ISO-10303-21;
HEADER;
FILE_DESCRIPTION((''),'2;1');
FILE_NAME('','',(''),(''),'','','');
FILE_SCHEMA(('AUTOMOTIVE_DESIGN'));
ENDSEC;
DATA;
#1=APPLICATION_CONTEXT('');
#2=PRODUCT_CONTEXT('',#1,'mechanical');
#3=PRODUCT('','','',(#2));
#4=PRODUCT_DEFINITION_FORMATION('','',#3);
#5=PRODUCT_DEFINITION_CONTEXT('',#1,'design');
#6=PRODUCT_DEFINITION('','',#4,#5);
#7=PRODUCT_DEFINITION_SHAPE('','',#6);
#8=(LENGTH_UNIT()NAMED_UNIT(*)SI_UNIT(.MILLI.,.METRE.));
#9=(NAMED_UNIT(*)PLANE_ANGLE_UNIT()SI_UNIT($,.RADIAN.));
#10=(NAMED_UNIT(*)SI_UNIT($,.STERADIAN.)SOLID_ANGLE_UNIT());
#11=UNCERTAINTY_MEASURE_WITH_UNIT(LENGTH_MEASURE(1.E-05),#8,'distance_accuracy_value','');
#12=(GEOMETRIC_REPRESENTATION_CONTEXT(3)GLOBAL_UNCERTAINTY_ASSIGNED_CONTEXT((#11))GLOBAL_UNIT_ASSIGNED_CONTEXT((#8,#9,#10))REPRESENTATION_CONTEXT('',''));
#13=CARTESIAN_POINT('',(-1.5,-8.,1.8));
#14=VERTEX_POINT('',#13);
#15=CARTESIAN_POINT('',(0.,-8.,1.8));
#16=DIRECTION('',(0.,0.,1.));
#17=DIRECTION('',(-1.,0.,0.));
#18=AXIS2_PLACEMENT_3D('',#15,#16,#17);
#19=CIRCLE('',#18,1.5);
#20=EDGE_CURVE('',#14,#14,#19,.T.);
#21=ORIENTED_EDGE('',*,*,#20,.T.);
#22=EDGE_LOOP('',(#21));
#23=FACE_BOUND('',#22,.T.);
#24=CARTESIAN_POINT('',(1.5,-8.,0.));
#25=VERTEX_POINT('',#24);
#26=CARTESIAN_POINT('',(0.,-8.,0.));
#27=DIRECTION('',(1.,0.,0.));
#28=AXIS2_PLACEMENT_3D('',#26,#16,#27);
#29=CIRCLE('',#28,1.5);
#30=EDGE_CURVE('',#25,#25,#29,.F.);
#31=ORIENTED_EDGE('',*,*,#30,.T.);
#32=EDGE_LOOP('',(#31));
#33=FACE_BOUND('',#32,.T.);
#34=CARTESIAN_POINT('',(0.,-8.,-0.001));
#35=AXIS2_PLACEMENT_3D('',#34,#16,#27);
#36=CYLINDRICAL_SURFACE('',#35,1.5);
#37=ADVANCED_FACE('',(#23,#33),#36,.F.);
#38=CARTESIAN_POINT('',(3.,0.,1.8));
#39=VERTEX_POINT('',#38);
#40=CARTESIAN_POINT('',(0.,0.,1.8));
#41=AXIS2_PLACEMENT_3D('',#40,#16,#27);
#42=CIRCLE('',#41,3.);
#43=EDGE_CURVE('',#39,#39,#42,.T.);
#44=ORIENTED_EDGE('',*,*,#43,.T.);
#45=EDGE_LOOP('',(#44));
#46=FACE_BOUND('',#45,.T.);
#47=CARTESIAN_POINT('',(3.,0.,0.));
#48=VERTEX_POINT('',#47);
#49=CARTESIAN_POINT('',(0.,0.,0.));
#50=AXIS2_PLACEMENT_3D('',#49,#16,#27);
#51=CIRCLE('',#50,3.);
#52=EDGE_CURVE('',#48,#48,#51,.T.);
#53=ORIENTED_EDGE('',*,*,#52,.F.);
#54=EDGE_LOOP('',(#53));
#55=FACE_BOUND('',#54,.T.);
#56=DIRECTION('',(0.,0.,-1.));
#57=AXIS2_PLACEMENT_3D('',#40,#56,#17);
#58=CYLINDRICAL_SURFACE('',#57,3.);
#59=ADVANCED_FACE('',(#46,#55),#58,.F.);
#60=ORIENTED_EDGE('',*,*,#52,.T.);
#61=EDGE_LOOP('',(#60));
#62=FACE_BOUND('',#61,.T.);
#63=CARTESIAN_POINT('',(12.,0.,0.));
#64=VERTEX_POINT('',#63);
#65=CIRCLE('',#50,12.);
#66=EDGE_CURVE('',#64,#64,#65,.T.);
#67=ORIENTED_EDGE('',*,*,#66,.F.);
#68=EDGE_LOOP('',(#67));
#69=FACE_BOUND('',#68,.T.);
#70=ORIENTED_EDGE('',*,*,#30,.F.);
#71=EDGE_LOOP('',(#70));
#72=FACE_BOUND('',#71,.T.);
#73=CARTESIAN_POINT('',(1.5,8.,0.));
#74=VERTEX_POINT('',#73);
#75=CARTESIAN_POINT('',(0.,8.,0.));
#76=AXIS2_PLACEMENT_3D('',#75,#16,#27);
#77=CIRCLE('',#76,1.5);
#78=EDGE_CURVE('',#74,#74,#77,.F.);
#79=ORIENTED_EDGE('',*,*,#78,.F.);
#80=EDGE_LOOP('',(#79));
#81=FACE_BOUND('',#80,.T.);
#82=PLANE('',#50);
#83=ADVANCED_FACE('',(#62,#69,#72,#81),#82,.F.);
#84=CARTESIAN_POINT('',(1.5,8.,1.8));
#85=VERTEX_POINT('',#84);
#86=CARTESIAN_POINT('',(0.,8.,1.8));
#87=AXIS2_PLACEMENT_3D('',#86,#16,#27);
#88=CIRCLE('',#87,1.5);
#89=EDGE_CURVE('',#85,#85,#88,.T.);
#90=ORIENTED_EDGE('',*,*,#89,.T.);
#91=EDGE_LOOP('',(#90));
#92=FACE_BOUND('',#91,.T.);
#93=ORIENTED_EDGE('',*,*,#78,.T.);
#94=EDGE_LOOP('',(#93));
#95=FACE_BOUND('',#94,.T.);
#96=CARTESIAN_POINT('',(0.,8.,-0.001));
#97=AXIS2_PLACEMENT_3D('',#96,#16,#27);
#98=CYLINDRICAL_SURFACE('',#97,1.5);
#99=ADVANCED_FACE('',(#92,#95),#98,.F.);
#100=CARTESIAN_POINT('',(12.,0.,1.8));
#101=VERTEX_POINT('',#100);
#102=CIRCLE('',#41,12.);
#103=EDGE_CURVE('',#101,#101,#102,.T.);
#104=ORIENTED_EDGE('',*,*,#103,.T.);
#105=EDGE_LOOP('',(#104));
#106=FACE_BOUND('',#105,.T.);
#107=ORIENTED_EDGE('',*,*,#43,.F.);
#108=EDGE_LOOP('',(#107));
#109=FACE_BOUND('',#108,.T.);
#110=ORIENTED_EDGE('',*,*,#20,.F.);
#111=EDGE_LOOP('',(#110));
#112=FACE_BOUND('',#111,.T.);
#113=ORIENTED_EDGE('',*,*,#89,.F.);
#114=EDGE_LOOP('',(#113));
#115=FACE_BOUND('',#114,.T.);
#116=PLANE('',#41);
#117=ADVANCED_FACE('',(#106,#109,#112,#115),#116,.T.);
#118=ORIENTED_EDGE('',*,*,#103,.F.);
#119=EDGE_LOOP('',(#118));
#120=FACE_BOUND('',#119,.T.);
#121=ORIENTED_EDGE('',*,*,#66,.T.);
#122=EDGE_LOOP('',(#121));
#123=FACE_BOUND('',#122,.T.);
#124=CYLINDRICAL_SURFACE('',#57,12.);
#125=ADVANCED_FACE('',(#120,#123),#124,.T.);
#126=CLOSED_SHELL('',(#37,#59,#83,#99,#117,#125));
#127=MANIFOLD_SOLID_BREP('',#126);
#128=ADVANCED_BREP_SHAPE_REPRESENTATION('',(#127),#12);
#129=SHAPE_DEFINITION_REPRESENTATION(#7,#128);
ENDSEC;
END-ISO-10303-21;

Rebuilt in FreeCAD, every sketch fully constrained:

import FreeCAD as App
import Part
import Sketcher

doc = App.newDocument("Part")
body = doc.addObject("PartDesign::Body", "Body")

sketch1 = body.newObject("Sketcher::SketchObject", "Sketch")
sketch1.AttachmentSupport = (doc.getObject("XY_Plane"), [""])
sketch1.MapMode = "FlatFace"
sketch1.addGeometry(Part.Circle(App.Vector(0, 0, 0), App.Vector(0, 0, 1), 12), False)
sketch1.addGeometry(Part.Circle(App.Vector(0, 0, 0), App.Vector(0, 0, 1), 3), False)
sketch1.addConstraint(Sketcher.Constraint("Coincident", 0, 3, -1, 1))
sketch1.addConstraint(Sketcher.Constraint("Coincident", 1, 3, -1, 1))
sketch1.addConstraint(Sketcher.Constraint("Diameter", 0, 24.0))
sketch1.addConstraint(Sketcher.Constraint("Diameter", 1, 6.0))
pad1 = body.newObject("PartDesign::Pad", "Pad")
pad1.Profile = sketch1
pad1.Length = 1.8

sketch2 = body.newObject("Sketcher::SketchObject", "Sketch001")
sketch2.AttachmentSupport = (doc.getObject("XY_Plane"), [""])
sketch2.MapMode = "FlatFace"
sketch2.AttachmentOffset = App.Placement(App.Vector(0, 0, 1.8), App.Rotation())
sketch2.addGeometry(Part.Circle(App.Vector(0, 8, 0), App.Vector(0, 0, 1), 1.5), False)
sketch2.addConstraint(Sketcher.Constraint("PointOnObject", 0, 3, -2))
sketch2.addConstraint(Sketcher.Constraint("Diameter", 0, 3.0))
sketch2.addConstraint(Sketcher.Constraint("DistanceY", -1, 1, 0, 3, 8.0))
pocket1 = body.newObject("PartDesign::Pocket", "Pocket")
pocket1.Profile = sketch2
pocket1.Type = "UpToFirst"

sketch3 = body.newObject("Sketcher::SketchObject", "Sketch002")
sketch3.AttachmentSupport = (doc.getObject("XY_Plane"), [""])
sketch3.MapMode = "FlatFace"
sketch3.AttachmentOffset = App.Placement(App.Vector(0, 0, 1.8), App.Rotation())
sketch3.addGeometry(Part.Circle(App.Vector(0, -8, 0), App.Vector(0, 0, 1), 1.5), False)
sketch3.addConstraint(Sketcher.Constraint("PointOnObject", 0, 3, -2))
sketch3.addConstraint(Sketcher.Constraint("Diameter", 0, 3.0))
sketch3.addConstraint(Sketcher.Constraint("DistanceY", 0, 3, -1, 1, 8.0))
pocket2 = body.newObject("PartDesign::Pocket", "Pocket001")
pocket2.Profile = sketch3
pocket2.Type = "UpToFirst"

doc.recompute()
